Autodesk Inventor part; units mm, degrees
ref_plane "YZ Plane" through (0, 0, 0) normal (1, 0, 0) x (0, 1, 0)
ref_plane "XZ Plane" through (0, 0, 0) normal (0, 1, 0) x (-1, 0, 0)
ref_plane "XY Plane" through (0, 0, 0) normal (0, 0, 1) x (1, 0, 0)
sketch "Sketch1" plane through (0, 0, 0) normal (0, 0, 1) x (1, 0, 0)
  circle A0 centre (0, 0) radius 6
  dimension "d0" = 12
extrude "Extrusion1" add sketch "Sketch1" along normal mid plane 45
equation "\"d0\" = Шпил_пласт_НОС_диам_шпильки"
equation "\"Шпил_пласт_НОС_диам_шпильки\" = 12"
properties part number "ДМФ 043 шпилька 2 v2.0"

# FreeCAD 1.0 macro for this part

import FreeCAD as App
import Part
import Sketcher

V = App.Vector
Q = App.Units.Quantity

doc = App.newDocument("Part")
body = doc.addObject("PartDesign::Body", "Body")

sketch1 = doc.addObject("Sketcher::SketchObject", "Sketch")
body.addObject(sketch1)
sketch1.AttachmentSupport = (doc.XY_Plane, [""])
sketch1.MapMode = "FlatFace"
sketch1.addGeometry(Part.Circle(V(0, 0, 0), V(0, 0, 1), 6), False)
sketch1.addConstraint(Sketcher.Constraint("Coincident", 0, 3, -1, 1))
sketch1.addConstraint(Sketcher.Constraint("Diameter", 0, Q("12 mm")))
pad1 = doc.addObject("PartDesign::Pad", "Pad")
body.addObject(pad1)
pad1.Profile = sketch1
pad1.Length = 45
pad1.Midplane = True

doc.recompute()
